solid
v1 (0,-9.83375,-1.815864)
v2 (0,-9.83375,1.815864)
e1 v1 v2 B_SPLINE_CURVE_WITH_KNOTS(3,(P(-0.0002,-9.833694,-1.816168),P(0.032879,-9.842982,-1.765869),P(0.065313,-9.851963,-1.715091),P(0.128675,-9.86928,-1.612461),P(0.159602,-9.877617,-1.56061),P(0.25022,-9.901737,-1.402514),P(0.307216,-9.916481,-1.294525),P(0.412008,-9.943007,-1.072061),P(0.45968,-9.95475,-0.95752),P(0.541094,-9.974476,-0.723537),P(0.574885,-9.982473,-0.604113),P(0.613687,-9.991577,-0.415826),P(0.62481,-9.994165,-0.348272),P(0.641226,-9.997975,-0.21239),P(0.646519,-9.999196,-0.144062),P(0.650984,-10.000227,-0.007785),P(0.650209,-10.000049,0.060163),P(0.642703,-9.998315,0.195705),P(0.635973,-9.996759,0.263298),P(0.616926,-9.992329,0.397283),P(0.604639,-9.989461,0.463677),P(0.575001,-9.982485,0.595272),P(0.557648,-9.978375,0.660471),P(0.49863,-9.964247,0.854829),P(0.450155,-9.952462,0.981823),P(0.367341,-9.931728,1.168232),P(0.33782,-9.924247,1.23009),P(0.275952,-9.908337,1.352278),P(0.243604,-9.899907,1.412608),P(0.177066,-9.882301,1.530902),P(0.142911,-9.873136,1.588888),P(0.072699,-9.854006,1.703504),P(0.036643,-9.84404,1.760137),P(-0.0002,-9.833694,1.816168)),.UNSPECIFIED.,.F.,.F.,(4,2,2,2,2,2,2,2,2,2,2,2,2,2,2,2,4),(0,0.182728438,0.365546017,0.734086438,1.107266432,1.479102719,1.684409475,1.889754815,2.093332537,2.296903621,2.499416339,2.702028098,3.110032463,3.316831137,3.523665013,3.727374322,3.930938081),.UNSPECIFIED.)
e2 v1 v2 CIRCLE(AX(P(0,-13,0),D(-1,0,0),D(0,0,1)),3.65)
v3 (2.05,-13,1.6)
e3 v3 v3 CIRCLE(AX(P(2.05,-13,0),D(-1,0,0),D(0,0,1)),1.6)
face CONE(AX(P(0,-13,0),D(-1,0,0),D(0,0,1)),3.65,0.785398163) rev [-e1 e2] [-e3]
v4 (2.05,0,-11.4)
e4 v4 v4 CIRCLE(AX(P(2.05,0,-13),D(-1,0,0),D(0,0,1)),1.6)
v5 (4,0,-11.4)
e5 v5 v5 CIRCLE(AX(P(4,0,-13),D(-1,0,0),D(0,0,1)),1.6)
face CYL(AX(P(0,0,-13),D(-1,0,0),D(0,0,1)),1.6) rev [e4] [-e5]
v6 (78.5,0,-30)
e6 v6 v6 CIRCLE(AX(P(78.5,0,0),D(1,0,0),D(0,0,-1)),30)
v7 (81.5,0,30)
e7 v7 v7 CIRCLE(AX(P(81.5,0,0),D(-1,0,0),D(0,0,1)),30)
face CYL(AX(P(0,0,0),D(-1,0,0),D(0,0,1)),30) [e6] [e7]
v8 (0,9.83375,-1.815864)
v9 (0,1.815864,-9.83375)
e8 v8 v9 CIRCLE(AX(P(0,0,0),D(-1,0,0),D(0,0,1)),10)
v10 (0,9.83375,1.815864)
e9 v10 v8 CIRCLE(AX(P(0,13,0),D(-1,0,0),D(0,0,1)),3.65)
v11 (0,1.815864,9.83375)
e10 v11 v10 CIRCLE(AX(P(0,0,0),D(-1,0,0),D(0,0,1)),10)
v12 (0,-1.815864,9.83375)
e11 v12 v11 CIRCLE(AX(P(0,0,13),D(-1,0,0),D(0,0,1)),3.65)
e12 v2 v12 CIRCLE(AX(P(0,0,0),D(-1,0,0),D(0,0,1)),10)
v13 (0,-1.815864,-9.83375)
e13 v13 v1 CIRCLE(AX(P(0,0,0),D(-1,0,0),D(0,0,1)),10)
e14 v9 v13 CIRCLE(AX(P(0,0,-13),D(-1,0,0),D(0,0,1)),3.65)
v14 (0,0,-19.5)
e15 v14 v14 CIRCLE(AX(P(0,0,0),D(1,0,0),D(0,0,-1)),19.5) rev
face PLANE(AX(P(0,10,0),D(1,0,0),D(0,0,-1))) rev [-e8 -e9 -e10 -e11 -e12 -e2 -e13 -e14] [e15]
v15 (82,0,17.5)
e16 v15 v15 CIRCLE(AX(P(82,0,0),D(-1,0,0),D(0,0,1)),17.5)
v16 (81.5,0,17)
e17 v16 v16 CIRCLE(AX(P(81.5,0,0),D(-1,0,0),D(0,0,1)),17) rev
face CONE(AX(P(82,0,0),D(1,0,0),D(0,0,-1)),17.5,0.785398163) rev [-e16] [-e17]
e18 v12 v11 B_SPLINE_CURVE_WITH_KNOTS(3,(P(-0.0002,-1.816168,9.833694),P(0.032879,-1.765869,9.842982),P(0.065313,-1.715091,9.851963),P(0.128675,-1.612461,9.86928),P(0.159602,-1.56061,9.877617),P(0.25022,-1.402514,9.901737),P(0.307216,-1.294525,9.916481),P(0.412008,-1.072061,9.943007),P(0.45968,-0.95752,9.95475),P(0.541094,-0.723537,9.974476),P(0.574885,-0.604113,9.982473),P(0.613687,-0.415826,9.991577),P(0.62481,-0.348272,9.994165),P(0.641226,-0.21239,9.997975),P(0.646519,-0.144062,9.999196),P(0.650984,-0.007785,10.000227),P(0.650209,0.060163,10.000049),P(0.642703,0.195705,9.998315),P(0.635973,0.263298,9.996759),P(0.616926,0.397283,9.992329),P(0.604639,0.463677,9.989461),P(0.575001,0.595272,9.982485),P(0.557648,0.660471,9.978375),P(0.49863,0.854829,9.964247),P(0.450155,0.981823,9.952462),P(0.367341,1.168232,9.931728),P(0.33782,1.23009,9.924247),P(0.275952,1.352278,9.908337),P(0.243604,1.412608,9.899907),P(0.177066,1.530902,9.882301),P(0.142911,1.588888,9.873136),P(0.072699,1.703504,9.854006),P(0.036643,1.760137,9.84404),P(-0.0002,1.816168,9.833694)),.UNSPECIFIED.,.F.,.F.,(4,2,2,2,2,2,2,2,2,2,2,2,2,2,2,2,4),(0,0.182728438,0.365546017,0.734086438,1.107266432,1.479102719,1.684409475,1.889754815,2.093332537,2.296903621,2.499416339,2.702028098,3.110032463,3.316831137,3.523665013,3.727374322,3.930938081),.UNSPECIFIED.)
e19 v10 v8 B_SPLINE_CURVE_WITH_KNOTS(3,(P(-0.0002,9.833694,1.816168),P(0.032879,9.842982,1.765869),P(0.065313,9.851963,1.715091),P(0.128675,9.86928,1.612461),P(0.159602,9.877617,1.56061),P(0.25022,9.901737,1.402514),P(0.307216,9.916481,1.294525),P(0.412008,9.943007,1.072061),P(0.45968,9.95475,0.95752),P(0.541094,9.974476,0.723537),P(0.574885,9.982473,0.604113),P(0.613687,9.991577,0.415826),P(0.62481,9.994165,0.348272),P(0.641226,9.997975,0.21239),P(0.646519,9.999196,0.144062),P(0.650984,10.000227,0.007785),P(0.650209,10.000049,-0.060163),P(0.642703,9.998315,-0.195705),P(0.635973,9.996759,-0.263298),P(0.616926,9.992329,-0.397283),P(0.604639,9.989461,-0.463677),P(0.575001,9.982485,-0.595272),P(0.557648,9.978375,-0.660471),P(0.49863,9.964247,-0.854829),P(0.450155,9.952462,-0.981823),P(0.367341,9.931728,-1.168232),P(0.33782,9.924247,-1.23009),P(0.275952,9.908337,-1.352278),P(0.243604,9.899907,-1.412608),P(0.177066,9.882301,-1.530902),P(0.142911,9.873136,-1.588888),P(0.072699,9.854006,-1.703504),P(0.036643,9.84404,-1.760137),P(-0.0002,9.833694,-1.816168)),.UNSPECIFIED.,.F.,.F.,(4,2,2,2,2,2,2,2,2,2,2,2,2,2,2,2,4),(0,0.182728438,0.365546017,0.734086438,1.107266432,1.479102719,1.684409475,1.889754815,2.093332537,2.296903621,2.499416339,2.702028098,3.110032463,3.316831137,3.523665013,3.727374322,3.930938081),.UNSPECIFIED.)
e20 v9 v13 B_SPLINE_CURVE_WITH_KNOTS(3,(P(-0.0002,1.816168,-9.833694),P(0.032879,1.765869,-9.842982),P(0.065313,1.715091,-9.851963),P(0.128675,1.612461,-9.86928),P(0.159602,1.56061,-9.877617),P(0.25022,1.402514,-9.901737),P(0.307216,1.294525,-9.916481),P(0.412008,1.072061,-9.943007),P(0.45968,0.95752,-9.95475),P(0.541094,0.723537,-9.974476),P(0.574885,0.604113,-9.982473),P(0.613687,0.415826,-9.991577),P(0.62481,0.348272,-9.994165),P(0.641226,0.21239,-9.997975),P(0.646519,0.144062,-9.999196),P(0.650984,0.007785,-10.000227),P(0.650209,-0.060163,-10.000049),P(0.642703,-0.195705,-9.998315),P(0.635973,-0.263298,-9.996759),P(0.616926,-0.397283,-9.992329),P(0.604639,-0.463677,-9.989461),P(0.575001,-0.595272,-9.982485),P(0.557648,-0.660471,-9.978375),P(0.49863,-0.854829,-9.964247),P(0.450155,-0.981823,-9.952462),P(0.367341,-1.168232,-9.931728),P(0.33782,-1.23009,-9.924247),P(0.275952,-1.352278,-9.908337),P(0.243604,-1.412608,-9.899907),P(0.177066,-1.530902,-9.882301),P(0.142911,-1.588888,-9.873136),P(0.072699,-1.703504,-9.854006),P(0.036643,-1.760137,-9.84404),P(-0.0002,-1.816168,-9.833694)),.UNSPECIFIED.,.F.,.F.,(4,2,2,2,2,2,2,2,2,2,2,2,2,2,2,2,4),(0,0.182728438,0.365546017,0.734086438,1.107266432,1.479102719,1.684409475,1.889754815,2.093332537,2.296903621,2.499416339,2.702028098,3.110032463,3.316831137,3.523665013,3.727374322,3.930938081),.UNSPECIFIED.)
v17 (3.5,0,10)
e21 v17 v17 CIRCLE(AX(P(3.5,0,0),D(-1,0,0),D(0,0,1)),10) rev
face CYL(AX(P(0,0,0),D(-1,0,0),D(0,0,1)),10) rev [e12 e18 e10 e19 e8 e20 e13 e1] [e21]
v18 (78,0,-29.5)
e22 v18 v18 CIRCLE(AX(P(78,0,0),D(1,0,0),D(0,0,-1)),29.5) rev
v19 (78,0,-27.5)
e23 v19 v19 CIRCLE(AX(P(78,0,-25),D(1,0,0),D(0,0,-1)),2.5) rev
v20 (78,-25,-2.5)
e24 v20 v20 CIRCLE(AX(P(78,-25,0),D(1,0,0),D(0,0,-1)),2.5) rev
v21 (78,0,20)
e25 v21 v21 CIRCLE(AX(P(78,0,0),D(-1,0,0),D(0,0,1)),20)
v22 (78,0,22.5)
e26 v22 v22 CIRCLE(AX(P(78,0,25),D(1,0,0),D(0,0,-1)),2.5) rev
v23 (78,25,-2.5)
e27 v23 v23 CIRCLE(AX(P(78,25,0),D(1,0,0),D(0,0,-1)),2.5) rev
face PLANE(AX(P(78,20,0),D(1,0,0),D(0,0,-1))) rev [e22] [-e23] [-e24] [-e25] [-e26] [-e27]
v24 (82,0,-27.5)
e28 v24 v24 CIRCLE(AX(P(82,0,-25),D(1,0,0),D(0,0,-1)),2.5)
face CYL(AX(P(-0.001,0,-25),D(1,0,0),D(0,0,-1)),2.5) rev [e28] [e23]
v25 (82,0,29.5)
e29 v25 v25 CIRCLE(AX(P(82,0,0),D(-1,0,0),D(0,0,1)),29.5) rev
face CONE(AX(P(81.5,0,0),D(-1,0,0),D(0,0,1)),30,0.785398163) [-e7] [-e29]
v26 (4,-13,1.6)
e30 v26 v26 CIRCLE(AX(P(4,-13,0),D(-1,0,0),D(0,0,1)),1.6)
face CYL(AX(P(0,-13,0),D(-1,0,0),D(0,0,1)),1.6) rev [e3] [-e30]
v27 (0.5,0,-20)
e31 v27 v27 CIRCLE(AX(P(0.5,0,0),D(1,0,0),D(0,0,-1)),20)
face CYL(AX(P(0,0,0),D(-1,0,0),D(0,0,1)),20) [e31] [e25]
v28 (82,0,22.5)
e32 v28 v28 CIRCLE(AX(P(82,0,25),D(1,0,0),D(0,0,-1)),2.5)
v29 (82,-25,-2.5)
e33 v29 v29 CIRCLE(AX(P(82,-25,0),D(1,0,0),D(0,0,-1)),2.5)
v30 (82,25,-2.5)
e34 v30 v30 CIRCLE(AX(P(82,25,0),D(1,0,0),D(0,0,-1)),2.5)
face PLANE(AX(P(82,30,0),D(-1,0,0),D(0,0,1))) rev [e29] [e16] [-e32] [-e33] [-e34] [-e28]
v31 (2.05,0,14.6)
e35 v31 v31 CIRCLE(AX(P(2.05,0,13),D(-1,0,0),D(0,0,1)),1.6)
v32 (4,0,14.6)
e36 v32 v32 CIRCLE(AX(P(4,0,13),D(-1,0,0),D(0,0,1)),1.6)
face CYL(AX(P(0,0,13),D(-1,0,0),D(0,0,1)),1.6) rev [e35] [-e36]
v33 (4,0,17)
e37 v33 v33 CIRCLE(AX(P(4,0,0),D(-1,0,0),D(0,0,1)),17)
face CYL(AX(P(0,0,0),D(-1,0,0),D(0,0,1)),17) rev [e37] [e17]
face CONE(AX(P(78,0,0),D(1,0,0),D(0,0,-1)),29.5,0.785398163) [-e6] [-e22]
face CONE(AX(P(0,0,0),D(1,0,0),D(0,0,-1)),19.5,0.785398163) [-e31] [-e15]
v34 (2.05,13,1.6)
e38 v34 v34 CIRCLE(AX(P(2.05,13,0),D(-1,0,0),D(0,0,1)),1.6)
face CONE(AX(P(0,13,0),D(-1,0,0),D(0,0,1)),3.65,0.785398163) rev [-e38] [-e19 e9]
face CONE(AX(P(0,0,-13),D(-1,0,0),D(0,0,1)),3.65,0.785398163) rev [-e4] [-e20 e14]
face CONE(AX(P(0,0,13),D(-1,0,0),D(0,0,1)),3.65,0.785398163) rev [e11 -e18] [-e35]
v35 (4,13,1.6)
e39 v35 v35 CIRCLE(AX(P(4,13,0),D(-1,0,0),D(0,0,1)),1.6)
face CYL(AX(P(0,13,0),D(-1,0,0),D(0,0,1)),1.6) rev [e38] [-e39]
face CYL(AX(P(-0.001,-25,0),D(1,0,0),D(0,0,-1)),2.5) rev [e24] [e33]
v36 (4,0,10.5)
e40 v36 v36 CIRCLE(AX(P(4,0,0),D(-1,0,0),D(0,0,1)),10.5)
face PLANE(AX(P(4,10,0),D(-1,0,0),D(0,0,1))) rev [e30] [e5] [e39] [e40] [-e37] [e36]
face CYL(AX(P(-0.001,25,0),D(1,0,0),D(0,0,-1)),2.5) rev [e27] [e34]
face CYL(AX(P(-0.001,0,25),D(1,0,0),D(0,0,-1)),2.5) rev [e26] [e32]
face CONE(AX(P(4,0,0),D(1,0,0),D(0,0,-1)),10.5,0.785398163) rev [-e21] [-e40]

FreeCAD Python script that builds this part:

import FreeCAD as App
import Part
import Sketcher


def edges_at(feature, points):
    """Names of the edges that pass closest to the given points."""
    edges = feature.Shape.Edges
    near = lambda p: min(range(len(edges)), key=lambda i: edges[i].distToShape(Part.Vertex(*p))[0])
    return sorted({f"Edge{near(p) + 1}" for p in points})


def add_polygon(sketch, points):
    """Adds a closed chain of lines whose ends are joined by coincident constraints."""
    first, n = sketch.GeometryCount, len(points)
    for a, b in zip(points, points[1:] + points[:1]):
        sketch.addGeometry(Part.LineSegment(App.Vector(*a, 0), App.Vector(*b, 0)), False)
    for i in range(n):
        sketch.addConstraint(Sketcher.Constraint("Coincident", first + i, 2, first + (i + 1) % n, 1))

doc = App.newDocument("Part")
body = doc.addObject("PartDesign::Body", "Body")

# Sketch on XY plane
sketch1 = doc.addObject("Sketcher::SketchObject", "Sketch")
body.addObject(sketch1)
sketch1.AttachmentSupport = (doc.XY_Plane, [""])
sketch1.MapMode = "FlatFace"
add_polygon(sketch1, [(0, 20), (0, 10), (4, 10), (4, 17), (82, 17), (82, 30), (78, 30), (78, 20)])  # lines 0-7
sketch1.addConstraint([
    Sketcher.Constraint("Vertical", 0),
    Sketcher.Constraint("Horizontal", 1),
    Sketcher.Constraint("Vertical", 2),
    Sketcher.Constraint("Horizontal", 3),
    Sketcher.Constraint("Vertical", 4),
    Sketcher.Constraint("Horizontal", 5),
    Sketcher.Constraint("Vertical", 6),
    Sketcher.Constraint("Horizontal", 7),
    Sketcher.Constraint("PointOnObject", 0, 2, -2),
    Sketcher.Constraint("Equal", 1, 5),
    Sketcher.Constraint("Equal", 0, 6),
    Sketcher.Constraint("DistanceX", 1, 1, 1, 2, 4.0),
    Sketcher.Constraint("DistanceX", 3, 1, 3, 2, 78.0),
    Sketcher.Constraint("DistanceY", 0, 2, 0, 1, 10.0),
    Sketcher.Constraint("DistanceY", 2, 1, 2, 2, 7.0),
    Sketcher.Constraint("DistanceY", -1, 1, 0, 2, 10.0),
])
revolution = doc.addObject("PartDesign::Revolution", "Revolution")
body.addObject(revolution)
revolution.Profile = sketch1
revolution.ReferenceAxis = (sketch1, ["H_Axis"])
revolution.Angle = 360
doc.recompute()

chamfer = doc.addObject("PartDesign::Chamfer", "Chamfer")
body.addObject(chamfer)
chamfer.Base = (revolution, edges_at(revolution, [
    (0, 0, -20),
    (78, 0, -30),
    (82, 0, -30),
    (82, 0, -17),
    (4, 0, -10),
]))
chamfer.Size = 0.5

# Sketch on YZ plane
sketch2 = doc.addObject("Sketcher::SketchObject", "Sketch001")
body.addObject(sketch2)
sketch2.AttachmentSupport = (doc.YZ_Plane, [""])
sketch2.MapMode = "FlatFace"
sketch2.addGeometry([
    Part.Circle(App.Vector(13, 0, 0), App.Vector(0, 0, 1), 1.6),
    Part.Circle(App.Vector(0, 13, 0), App.Vector(0, 0, 1), 1.6),
    Part.Circle(App.Vector(-13, 0, 0), App.Vector(0, 0, 1), 1.6),
    Part.Circle(App.Vector(0, -13, 0), App.Vector(0, 0, 1), 1.6),
], False)
sketch2.addConstraint([
    Sketcher.Constraint("Equal", 0, 1),
    Sketcher.Constraint("Equal", 1, 2),
    Sketcher.Constraint("Equal", 2, 3),
    Sketcher.Constraint("Symmetric", 0, 3, 2, 3, -1, 1),
    Sketcher.Constraint("Symmetric", 1, 3, 3, 3, -1, 1),
    Sketcher.Constraint("PointOnObject", 0, 3, -1),
    Sketcher.Constraint("PointOnObject", 1, 3, -2),
    Sketcher.Constraint("Diameter", 0, 3.2),
    Sketcher.Constraint("DistanceX", -1, 1, 0, 3, 13.0),
    Sketcher.Constraint("DistanceY", -1, 1, 1, 3, 13.0),
])
doc.recompute()
hole = doc.addObject("PartDesign::Hole", "Hole")
body.addObject(hole)
hole.Profile = sketch2
hole.ThreadType = "None"
hole.Diameter = 3.2
hole.DepthType = "ThroughAll"
hole.HoleCutType = "Countersink"
hole.HoleCutDiameter = 7.3
hole.HoleCutCountersinkAngle = 90
hole.Reversed = True

# Sketch on YZ plane
sketch3 = doc.addObject("Sketcher::SketchObject", "Sketch002")
body.addObject(sketch3)
sketch3.AttachmentSupport = (doc.YZ_Plane, [""])
sketch3.MapMode = "FlatFace"
sketch3.AttachmentOffset = App.Placement(App.Vector(0, 0, 82), App.Rotation())
sketch3.addGeometry(Part.Circle(App.Vector(25, 0, 0), App.Vector(0, 0, 1), 2.5), False)
sketch3.addConstraint([
    Sketcher.Constraint("PointOnObject", 0, 3, -1),
    Sketcher.Constraint("Diameter", 0, 5.0),
    Sketcher.Constraint("DistanceX", -1, 1, 0, 3, 25.0),
])
pocket1 = doc.addObject("PartDesign::Pocket", "Pocket")
body.addObject(pocket1)
pocket1.Profile = sketch3
pocket1.Type = "UpToFirst"

# Sketch on YZ plane
sketch4 = doc.addObject("Sketcher::SketchObject", "Sketch003")
body.addObject(sketch4)
sketch4.AttachmentSupport = (doc.YZ_Plane, [""])
sketch4.MapMode = "FlatFace"
sketch4.AttachmentOffset = App.Placement(App.Vector(0, 0, 82), App.Rotation())
sketch4.addGeometry(Part.Circle(App.Vector(0, -25, 0), App.Vector(0, 0, 1), 2.5), False)
sketch4.addConstraint([
    Sketcher.Constraint("PointOnObject", 0, 3, -2),
    Sketcher.Constraint("Diameter", 0, 5.0),
    Sketcher.Constraint("DistanceY", 0, 3, -1, 1, 25.0),
])
pocket2 = doc.addObject("PartDesign::Pocket", "Pocket001")
body.addObject(pocket2)
pocket2.Profile = sketch4
pocket2.Type = "UpToFirst"

# Sketch on YZ plane
sketch5 = doc.addObject("Sketcher::SketchObject", "Sketch004")
body.addObject(sketch5)
sketch5.AttachmentSupport = (doc.YZ_Plane, [""])
sketch5.MapMode = "FlatFace"
sketch5.AttachmentOffset = App.Placement(App.Vector(0, 0, 82), App.Rotation())
sketch5.addGeometry(Part.Circle(App.Vector(0, 25, 0), App.Vector(0, 0, 1), 2.5), False)
sketch5.addConstraint([
    Sketcher.Constraint("PointOnObject", 0, 3, -2),
    Sketcher.Constraint("Diameter", 0, 5.0),
    Sketcher.Constraint("DistanceY", -1, 1, 0, 3, 25.0),
])
pocket3 = doc.addObject("PartDesign::Pocket", "Pocket002")
body.addObject(pocket3)
pocket3.Profile = sketch5
pocket3.Type = "UpToFirst"

# Sketch on YZ plane
sketch6 = doc.addObject("Sketcher::SketchObject", "Sketch005")
body.addObject(sketch6)
sketch6.AttachmentSupport = (doc.YZ_Plane, [""])
sketch6.MapMode = "FlatFace"
sketch6.AttachmentOffset = App.Placement(App.Vector(0, 0, 82), App.Rotation())
sketch6.addGeometry(Part.Circle(App.Vector(-25, 0, 0), App.Vector(0, 0, 1), 2.5), False)
sketch6.addConstraint([
    Sketcher.Constraint("PointOnObject", 0, 3, -1),
    Sketcher.Constraint("Diameter", 0, 5.0),
    Sketcher.Constraint("DistanceX", 0, 3, -1, 1, 25.0),
])
pocket4 = doc.addObject("PartDesign::Pocket", "Pocket003")
body.addObject(pocket4)
pocket4.Profile = sketch6
pocket4.Type = "UpToFirst"

doc.recompute()
